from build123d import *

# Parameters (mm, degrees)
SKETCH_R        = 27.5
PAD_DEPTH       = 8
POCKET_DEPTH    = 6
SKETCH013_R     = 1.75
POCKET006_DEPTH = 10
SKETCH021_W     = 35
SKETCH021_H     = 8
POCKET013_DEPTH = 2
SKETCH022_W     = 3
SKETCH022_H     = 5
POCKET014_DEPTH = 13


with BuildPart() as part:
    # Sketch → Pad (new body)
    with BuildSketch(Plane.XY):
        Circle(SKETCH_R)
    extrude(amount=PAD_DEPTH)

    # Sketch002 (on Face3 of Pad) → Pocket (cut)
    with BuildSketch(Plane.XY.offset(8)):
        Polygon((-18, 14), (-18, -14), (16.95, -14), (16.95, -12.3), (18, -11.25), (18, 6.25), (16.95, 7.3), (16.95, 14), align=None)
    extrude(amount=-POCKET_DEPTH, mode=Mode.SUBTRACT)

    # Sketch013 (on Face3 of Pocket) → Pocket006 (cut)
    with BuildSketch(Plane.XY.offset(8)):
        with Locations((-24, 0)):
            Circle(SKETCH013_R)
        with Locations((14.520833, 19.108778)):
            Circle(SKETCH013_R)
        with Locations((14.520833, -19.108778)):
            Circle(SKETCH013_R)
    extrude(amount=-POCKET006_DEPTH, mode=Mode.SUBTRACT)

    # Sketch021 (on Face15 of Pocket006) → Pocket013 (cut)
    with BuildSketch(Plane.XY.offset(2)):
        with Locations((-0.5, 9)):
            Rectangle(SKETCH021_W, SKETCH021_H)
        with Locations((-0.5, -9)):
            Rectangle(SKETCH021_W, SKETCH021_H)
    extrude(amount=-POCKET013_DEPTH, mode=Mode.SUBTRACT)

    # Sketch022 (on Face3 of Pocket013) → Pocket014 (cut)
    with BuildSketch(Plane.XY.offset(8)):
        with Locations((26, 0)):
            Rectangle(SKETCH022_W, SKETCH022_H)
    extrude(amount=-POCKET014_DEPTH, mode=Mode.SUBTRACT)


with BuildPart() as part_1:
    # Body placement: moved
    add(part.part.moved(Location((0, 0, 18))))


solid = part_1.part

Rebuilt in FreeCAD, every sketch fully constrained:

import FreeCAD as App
import Part
import Sketcher

V = App.Vector


def add_polygon(sketch, points):
    """Adds a closed chain of lines whose ends are joined by coincident constraints."""
    first, n = sketch.GeometryCount, len(points)
    for a, b in zip(points, points[1:] + points[:1]):
        sketch.addGeometry(Part.LineSegment(App.Vector(*a, 0), App.Vector(*b, 0)), False)
    for i in range(n):
        sketch.addConstraint(Sketcher.Constraint("Coincident", first + i, 2, first + (i + 1) % n, 1))

doc = App.newDocument("Part")
body = doc.addObject("PartDesign::Body", "Body")

# Sketch on XY plane
sketch1 = body.newObject("Sketcher::SketchObject", "Sketch")
sketch1.AttachmentSupport = (doc.getObject("XY_Plane"), [""])
sketch1.MapMode = "FlatFace"
sketch1.addGeometry(Part.Circle(V(0, 0, 0), V(0, 0, 1), 27.5), False)
sketch1.addConstraint([
    Sketcher.Constraint("Coincident", 0, 3, -1, 1),
    Sketcher.Constraint("Diameter", 0, 55.0),
])
pad1 = body.newObject("PartDesign::Pad", "Pad")
pad1.Profile = sketch1
pad1.Length = 8

# Sketch on XY plane
sketch2 = body.newObject("Sketcher::SketchObject", "Sketch001")
sketch2.AttachmentSupport = (doc.getObject("XY_Plane"), [""])
sketch2.MapMode = "FlatFace"
sketch2.AttachmentOffset = App.Placement(V(0, 0, 8), App.Rotation())
add_polygon(sketch2, [(-18, 14), (-18, -14), (16.95, -14), (16.95, -12.3), (18, -11.25), (18, 6.25), (16.95, 7.3), (16.95, 14)])  # lines 0-7
sketch2.addConstraint([
    Sketcher.Constraint("Vertical", 0),
    Sketcher.Constraint("Horizontal", 1),
    Sketcher.Constraint("Vertical", 2),
    Sketcher.Constraint("Vertical", 4),
    Sketcher.Constraint("Vertical", 6),
    Sketcher.Constraint("Horizontal", 7),
    Sketcher.Constraint("Symmetric", 1, 2, 6, 2, -1),
    Sketcher.Constraint("Perpendicular", 3, 5),
    Sketcher.Constraint("Equal", 3, 5),
    Sketcher.Constraint("DistanceY", 0, 2, 0, 1, 28.0),
    Sketcher.Constraint("DistanceY", 2, 1, 2, 2, 1.7),
    Sketcher.Constraint("DistanceY", 4, 1, 4, 2, 17.5),
    Sketcher.Constraint("DistanceY", 6, 1, 6, 2, 6.7),
    Sketcher.Constraint("DistanceX", 0, 2, -1, 1, 18.0),
    Sketcher.Constraint("DistanceX", -1, 1, 3, 2, 18.0),
])
pocket1 = body.newObject("PartDesign::Pocket", "Pocket")
pocket1.Profile = sketch2
pocket1.Length = 6

# Sketch on XY plane
sketch3 = body.newObject("Sketcher::SketchObject", "Sketch002")
sketch3.AttachmentSupport = (doc.getObject("XY_Plane"), [""])
sketch3.MapMode = "FlatFace"
sketch3.AttachmentOffset = App.Placement(V(0, 0, 8), App.Rotation())
sketch3.addGeometry([
    Part.Circle(V(-24, 0, 0), V(0, 0, 1), 1.75),
    Part.Circle(V(14.520833, 19.108778, 0), V(0, 0, 1), 1.75),
    Part.Circle(V(14.520833, -19.108778, 0), V(0, 0, 1), 1.75),
], False)
sketch3.addConstraint([
    Sketcher.Constraint("Equal", 0, 1),
    Sketcher.Constraint("Equal", 1, 2),
    Sketcher.Constraint("Symmetric", 1, 3, 2, 3, -1),
    Sketcher.Constraint("PointOnObject", 0, 3, -1),
    Sketcher.Constraint("Diameter", 0, 3.5),
    Sketcher.Constraint("DistanceX", 0, 3, -1, 1, 24.0),
    Sketcher.Constraint("DistanceY", -1, 1, 1, 3, 19.108778),
    Sketcher.Constraint("DistanceX", -1, 1, 1, 3, 14.520833),
])
pocket2 = body.newObject("PartDesign::Pocket", "Pocket001")
pocket2.Profile = sketch3
pocket2.Length = 10

# Sketch on XY plane
sketch4 = body.newObject("Sketcher::SketchObject", "Sketch003")
sketch4.AttachmentSupport = (doc.getObject("XY_Plane"), [""])
sketch4.MapMode = "FlatFace"
sketch4.AttachmentOffset = App.Placement(V(0, 0, 2), App.Rotation())
add_polygon(sketch4, [(-18, 13), (-18, 5), (17, 5), (17, 13)])  # lines 0-3
add_polygon(sketch4, [(-18, -5), (-18, -13), (17, -13), (17, -5)])  # lines 4-7
sketch4.addConstraint([
    Sketcher.Constraint("Vertical", 0),
    Sketcher.Constraint("Horizontal", 1),
    Sketcher.Constraint("Vertical", 2),
    Sketcher.Constraint("Horizontal", 3),
    Sketcher.Constraint("Vertical", 4),
    Sketcher.Constraint("Horizontal", 5),
    Sketcher.Constraint("Vertical", 6),
    Sketcher.Constraint("Horizontal", 7),
    Sketcher.Constraint("Symmetric", 3, 2, 4, 2, -1),
    Sketcher.Constraint("Symmetric", 1, 2, 6, 2, -1),
    Sketcher.Constraint("DistanceX", 1, 1, 1, 2, 35.0),
    Sketcher.Constraint("DistanceY", 0, 2, 0, 1, 8.0),
    Sketcher.Constraint("DistanceX", 0, 2, -1, 1, 18.0),
    Sketcher.Constraint("DistanceY", -1, 1, 0, 2, 5.0),
])
pocket3 = body.newObject("PartDesign::Pocket", "Pocket002")
pocket3.Profile = sketch4
pocket3.Length = 2

# Sketch on XY plane
sketch5 = body.newObject("Sketcher::SketchObject", "Sketch004")
sketch5.AttachmentSupport = (doc.getObject("XY_Plane"), [""])
sketch5.MapMode = "FlatFace"
sketch5.AttachmentOffset = App.Placement(V(0, 0, 8), App.Rotation())
add_polygon(sketch5, [(24.5, 2.5), (24.5, -2.5), (27.5, -2.5), (27.5, 2.5)])  # lines 0-3
sketch5.addConstraint([
    Sketcher.Constraint("Vertical", 0),
    Sketcher.Constraint("Horizontal", 1),
    Sketcher.Constraint("Vertical", 2),
    Sketcher.Constraint("Horizontal", 3),
    Sketcher.Constraint("DistanceX", 1, 1, 1, 2, 3.0),
    Sketcher.Constraint("DistanceY", 0, 2, 0, 1, 5.0),
    Sketcher.Constraint("DistanceX", -1, 1, 0, 2, 24.5),
    Sketcher.Constraint("DistanceY", 0, 2, -1, 1, 2.5),
])
pocket4 = body.newObject("PartDesign::Pocket", "Pocket003")
pocket4.Profile = sketch5
pocket4.Length = 13
body2 = doc.addObject("PartDesign::Body", "Body001")
doc.recompute()

body.Placement = App.Placement(V(0, 0, 18), App.Rotation(V(0, 0, 1), 0))
boolean = body2.newObject("PartDesign::Boolean", "Boolean")
boolean.Type = "Fuse"
boolean.addObjects([body])

doc.recompute()
